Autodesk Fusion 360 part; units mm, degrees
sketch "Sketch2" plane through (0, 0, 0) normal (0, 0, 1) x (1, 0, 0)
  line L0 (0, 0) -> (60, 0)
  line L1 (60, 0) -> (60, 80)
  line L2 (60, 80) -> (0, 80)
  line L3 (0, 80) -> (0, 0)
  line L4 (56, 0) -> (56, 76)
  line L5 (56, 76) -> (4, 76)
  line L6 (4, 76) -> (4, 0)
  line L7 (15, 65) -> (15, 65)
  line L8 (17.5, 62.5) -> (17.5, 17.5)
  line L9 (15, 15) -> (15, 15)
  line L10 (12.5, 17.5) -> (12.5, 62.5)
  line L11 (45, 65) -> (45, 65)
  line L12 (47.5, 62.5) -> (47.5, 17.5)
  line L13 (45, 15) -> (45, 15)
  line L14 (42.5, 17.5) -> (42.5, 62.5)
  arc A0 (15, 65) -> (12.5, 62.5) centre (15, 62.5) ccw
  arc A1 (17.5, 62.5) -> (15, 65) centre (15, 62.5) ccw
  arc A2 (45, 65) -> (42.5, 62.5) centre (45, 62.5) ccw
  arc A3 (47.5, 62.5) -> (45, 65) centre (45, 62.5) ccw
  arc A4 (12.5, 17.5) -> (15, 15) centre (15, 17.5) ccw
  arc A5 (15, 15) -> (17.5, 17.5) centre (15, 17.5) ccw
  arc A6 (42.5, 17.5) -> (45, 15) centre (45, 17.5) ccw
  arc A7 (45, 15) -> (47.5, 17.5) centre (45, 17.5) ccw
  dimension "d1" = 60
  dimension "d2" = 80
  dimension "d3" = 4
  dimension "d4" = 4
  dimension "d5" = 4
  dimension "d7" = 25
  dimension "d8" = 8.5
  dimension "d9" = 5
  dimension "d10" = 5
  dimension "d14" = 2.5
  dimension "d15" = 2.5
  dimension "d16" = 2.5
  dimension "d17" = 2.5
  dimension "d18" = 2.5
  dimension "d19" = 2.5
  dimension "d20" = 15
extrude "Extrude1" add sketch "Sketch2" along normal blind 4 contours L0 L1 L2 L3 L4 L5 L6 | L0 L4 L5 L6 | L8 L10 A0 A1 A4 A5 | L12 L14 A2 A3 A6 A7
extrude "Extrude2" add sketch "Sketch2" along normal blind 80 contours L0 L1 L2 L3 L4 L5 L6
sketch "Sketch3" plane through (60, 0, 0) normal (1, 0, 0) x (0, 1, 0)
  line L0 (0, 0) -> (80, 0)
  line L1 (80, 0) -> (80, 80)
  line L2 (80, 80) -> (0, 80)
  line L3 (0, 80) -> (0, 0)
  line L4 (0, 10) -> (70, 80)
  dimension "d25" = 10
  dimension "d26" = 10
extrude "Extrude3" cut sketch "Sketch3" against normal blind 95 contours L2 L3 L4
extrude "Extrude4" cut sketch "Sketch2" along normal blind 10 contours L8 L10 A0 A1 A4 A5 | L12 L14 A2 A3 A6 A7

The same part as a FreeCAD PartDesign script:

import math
import FreeCAD as App
import Part
import Sketcher
from FreeCAD import Vector


def add_polygon(sketch, points):
    """Adds a closed chain of lines whose ends are joined by coincident constraints."""
    first, n = sketch.GeometryCount, len(points)
    for a, b in zip(points, points[1:] + points[:1]):
        sketch.addGeometry(Part.LineSegment(App.Vector(*a, 0), App.Vector(*b, 0)), False)
    for i in range(n):
        sketch.addConstraint(Sketcher.Constraint("Coincident", first + i, 2, first + (i + 1) % n, 1))

doc = App.newDocument("Part")
body = doc.addObject("PartDesign::Body", "Body")

# Sketch on XY plane
sketch1 = doc.addObject("Sketcher::SketchObject", "Sketch")
body.addObject(sketch1)
sketch1.AttachmentSupport = (doc.XY_Plane, [""])
sketch1.MapMode = "FlatFace"
add_polygon(sketch1, [(0, 80), (0, 0), (60, 0), (60, 80)])  # lines 0-3
sketch1.addConstraint([
    Sketcher.Constraint("Vertical", 0),
    Sketcher.Constraint("Horizontal", 1),
    Sketcher.Constraint("Vertical", 2),
    Sketcher.Constraint("Horizontal", 3),
    Sketcher.Constraint("Coincident", 0, 2, -1, 1),
    Sketcher.Constraint("DistanceX", 1, 1, 1, 2, 60.0),
    Sketcher.Constraint("DistanceY", 0, 2, 0, 1, 80.0),
])
pad1 = doc.addObject("PartDesign::Pad", "Pad")
body.addObject(pad1)
pad1.Profile = sketch1
pad1.Length = 4

# Sketch on XY plane
sketch2 = doc.addObject("Sketcher::SketchObject", "Sketch001")
body.addObject(sketch2)
sketch2.AttachmentSupport = (doc.XY_Plane, [""])
sketch2.MapMode = "FlatFace"
add_polygon(sketch2, [(0, 80), (0, 0), (4, 0), (4, 76), (56, 76), (56, 0), (60, 0), (60, 80)])  # lines 0-7
sketch2.addConstraint([
    Sketcher.Constraint("Vertical", 0),
    Sketcher.Constraint("Horizontal", 1),
    Sketcher.Constraint("Vertical", 2),
    Sketcher.Constraint("Horizontal", 3),
    Sketcher.Constraint("Vertical", 4),
    Sketcher.Constraint("Horizontal", 5),
    Sketcher.Constraint("Vertical", 6),
    Sketcher.Constraint("Horizontal", 7),
    Sketcher.Constraint("Coincident", 0, 2, -1, 1),
    Sketcher.Constraint("PointOnObject", 4, 2, -1),
    Sketcher.Constraint("Equal", 1, 5),
    Sketcher.Constraint("DistanceX", 1, 1, 1, 2, 4.0),
    Sketcher.Constraint("DistanceX", 7, 2, 7, 1, 60.0),
    Sketcher.Constraint("DistanceY", 0, 2, 0, 1, 80.0),
    Sketcher.Constraint("DistanceY", 3, 2, 6, 2, 4.0),
])
pad2 = doc.addObject("PartDesign::Pad", "Pad001")
body.addObject(pad2)
pad2.Profile = sketch2
pad2.Length = 80

# Sketch on YZ plane
sketch3 = doc.addObject("Sketcher::SketchObject", "Sketch002")
body.addObject(sketch3)
sketch3.AttachmentSupport = (doc.YZ_Plane, [""])
sketch3.MapMode = "FlatFace"
sketch3.AttachmentOffset = App.Placement(Vector(0, 0, 60), App.Rotation())
add_polygon(sketch3, [(0, 80), (0, 10), (70, 80)])  # lines 0-2
sketch3.addConstraint([
    Sketcher.Constraint("Vertical", 0),
    Sketcher.Constraint("Horizontal", 2),
    Sketcher.Constraint("PointOnObject", 0, 2, -2),
    Sketcher.Constraint("Equal", 2, 0),
    Sketcher.Constraint("DistanceY", -1, 1, 0, 2, 10.0),
    Sketcher.Constraint("DistanceX", 2, 2, 2, 1, 70.0),
])
pocket1 = doc.addObject("PartDesign::Pocket", "Pocket")
body.addObject(pocket1)
pocket1.Profile = sketch3
pocket1.Length = 95

# Sketch on XY plane
sketch4 = doc.addObject("Sketcher::SketchObject", "Sketch003")
body.addObject(sketch4)
sketch4.AttachmentSupport = (doc.XY_Plane, [""])
sketch4.MapMode = "FlatFace"
sketch4.addGeometry([
    Part.LineSegment(Vector(17.5, 17.5, 0), Vector(17.5, 62.5, 0)),  # 0
    Part.ArcOfCircle(Part.Circle(Vector(15, 62.5, 0), Vector(0, 0, 1), 2.5), math.radians(0), math.radians(180)),  # 1
    Part.LineSegment(Vector(12.5, 62.5, 0), Vector(12.5, 17.5, 0)),  # 2
    Part.ArcOfCircle(Part.Circle(Vector(15, 17.5, 0), Vector(0, 0, 1), 2.5), math.radians(180), math.radians(360)),  # 3
    Part.LineSegment(Vector(47.5, 17.5, 0), Vector(47.5, 62.5, 0)),  # 4
    Part.ArcOfCircle(Part.Circle(Vector(45, 62.5, 0), Vector(0, 0, 1), 2.5), math.radians(0), math.radians(180)),  # 5
    Part.LineSegment(Vector(42.5, 62.5, 0), Vector(42.5, 17.5, 0)),  # 6
    Part.ArcOfCircle(Part.Circle(Vector(45, 17.5, 0), Vector(0, 0, 1), 2.5), math.radians(180), math.radians(360)),  # 7
], False)
sketch4.addConstraint([
    Sketcher.Constraint("Tangent", 0, 2, 1, 1),
    Sketcher.Constraint("Tangent", 1, 2, 2, 1),
    Sketcher.Constraint("Tangent", 2, 2, 3, 1),
    Sketcher.Constraint("Tangent", 3, 2, 0, 1),
    Sketcher.Constraint("Tangent", 4, 2, 5, 1),
    Sketcher.Constraint("Tangent", 5, 2, 6, 1),
    Sketcher.Constraint("Tangent", 6, 2, 7, 1),
    Sketcher.Constraint("Tangent", 7, 2, 4, 1),
    Sketcher.Constraint("Vertical", 0),
    Sketcher.Constraint("Vertical", 2),
    Sketcher.Constraint("Vertical", 4),
    Sketcher.Constraint("Vertical", 6),
    Sketcher.Constraint("Equal", 3, 5),
    Sketcher.Constraint("Horizontal", 1, 3, 5, 3),
    Sketcher.Constraint("Horizontal", 3, 3, 7, 3),
    Sketcher.Constraint("Radius", 1, 2.5),
    Sketcher.Constraint("DistanceX", -1, 1, 1, 3, 15.0),
    Sketcher.Constraint("DistanceX", 0, 2, 5, 2, 25.0),
    Sketcher.Constraint("DistanceY", 0, 1, 0, 2, 45.0),
    Sketcher.Constraint("DistanceY", -1, 1, 1, 3, 62.5),
])
pocket2 = doc.addObject("PartDesign::Pocket", "Pocket001")
body.addObject(pocket2)
pocket2.Profile = sketch4
pocket2.Length = 10
pocket2.Reversed = True

doc.recompute()
